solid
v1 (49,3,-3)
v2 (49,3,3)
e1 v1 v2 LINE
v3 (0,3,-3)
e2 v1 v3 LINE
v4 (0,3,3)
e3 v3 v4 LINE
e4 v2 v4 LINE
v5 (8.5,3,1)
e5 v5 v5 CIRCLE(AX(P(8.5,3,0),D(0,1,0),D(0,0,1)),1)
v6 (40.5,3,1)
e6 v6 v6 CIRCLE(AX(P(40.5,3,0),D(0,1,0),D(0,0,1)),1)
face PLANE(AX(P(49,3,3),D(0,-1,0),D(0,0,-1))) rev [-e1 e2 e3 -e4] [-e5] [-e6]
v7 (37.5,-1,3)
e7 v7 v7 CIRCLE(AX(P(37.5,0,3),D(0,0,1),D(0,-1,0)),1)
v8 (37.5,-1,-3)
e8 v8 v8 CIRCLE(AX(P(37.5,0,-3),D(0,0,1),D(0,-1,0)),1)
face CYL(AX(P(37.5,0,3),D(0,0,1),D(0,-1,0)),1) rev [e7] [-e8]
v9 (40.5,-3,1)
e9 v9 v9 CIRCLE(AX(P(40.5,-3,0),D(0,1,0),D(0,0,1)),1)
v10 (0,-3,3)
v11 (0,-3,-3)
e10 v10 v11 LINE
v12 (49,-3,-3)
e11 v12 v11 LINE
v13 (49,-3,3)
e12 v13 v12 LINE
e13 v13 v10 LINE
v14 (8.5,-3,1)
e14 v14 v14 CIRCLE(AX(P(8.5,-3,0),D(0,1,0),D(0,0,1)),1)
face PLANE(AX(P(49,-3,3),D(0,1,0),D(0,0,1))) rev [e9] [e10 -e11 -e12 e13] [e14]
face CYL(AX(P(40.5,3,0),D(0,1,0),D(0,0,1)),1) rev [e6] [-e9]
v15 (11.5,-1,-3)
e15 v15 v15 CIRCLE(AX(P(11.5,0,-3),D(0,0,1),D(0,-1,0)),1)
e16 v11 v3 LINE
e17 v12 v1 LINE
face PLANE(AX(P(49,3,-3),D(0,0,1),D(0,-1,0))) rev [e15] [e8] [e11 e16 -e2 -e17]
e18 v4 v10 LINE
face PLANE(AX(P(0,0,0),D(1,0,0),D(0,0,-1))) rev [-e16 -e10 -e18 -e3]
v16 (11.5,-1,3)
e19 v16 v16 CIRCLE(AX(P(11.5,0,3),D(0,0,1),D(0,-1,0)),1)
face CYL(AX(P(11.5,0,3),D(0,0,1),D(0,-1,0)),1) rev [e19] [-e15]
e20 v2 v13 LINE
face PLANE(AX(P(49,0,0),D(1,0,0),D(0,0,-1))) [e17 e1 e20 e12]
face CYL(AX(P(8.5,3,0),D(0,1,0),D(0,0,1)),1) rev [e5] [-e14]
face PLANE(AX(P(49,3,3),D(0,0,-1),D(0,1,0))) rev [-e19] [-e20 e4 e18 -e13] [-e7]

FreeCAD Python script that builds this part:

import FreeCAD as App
import Part
import Sketcher

V = App.Vector


def add_polygon(sketch, points):
    """Adds a closed chain of lines whose ends are joined by coincident constraints."""
    first, n = sketch.GeometryCount, len(points)
    for a, b in zip(points, points[1:] + points[:1]):
        sketch.addGeometry(Part.LineSegment(App.Vector(*a, 0), App.Vector(*b, 0)), False)
    for i in range(n):
        sketch.addConstraint(Sketcher.Constraint("Coincident", first + i, 2, first + (i + 1) % n, 1))

doc = App.newDocument("Part")
body = doc.addObject("PartDesign::Body", "Body")

# Sketch on YZ plane
sketch1 = doc.addObject("Sketcher::SketchObject", "Sketch")
body.addObject(sketch1)
sketch1.AttachmentSupport = (doc.YZ_Plane, [""])
sketch1.MapMode = "FlatFace"
add_polygon(sketch1, [(3, 3), (-3, 3), (-3, -3), (3, -3)])  # lines 0-3
sketch1.addConstraint(Sketcher.Constraint("Horizontal", 0))
sketch1.addConstraint(Sketcher.Constraint("Vertical", 1))
sketch1.addConstraint(Sketcher.Constraint("Horizontal", 2))
sketch1.addConstraint(Sketcher.Constraint("Vertical", 3))
sketch1.addConstraint(Sketcher.Constraint("Symmetric", 0, 2, 2, 2, -1, 1))
sketch1.addConstraint(Sketcher.Constraint("Equal", 2, 1))
sketch1.addConstraint(Sketcher.Constraint("DistanceX", 0, 2, 0, 1, 6.0))
pad1 = doc.addObject("PartDesign::Pad", "Pad")
body.addObject(pad1)
pad1.Profile = sketch1
pad1.Length = 49

# Sketch on XY plane
sketch2 = doc.addObject("Sketcher::SketchObject", "Sketch001")
body.addObject(sketch2)
sketch2.AttachmentSupport = (doc.XY_Plane, [""])
sketch2.MapMode = "FlatFace"
sketch2.AttachmentOffset = App.Placement(V(0, 0, 3), App.Rotation())
sketch2.addGeometry(Part.Circle(V(11.5, 0, 0), V(0, 0, 1), 1), False)
sketch2.addGeometry(Part.Circle(V(37.5, 0, 0), V(0, 0, 1), 1), False)
sketch2.addConstraint(Sketcher.Constraint("Equal", 0, 1))
sketch2.addConstraint(Sketcher.Constraint("PointOnObject", 0, 3, -1))
sketch2.addConstraint(Sketcher.Constraint("PointOnObject", 1, 3, -1))
sketch2.addConstraint(Sketcher.Constraint("Diameter", 0, 2.0))
sketch2.addConstraint(Sketcher.Constraint("DistanceX", 0, 3, 1, 3, 26.0))
sketch2.addConstraint(Sketcher.Constraint("DistanceX", -1, 1, 0, 3, 11.5))
doc.recompute()
hole = doc.addObject("PartDesign::Hole", "Hole")
body.addObject(hole)
hole.Profile = sketch2
hole.ThreadType = "None"
hole.Diameter = 2
hole.DepthType = "Dimension"
hole.Depth = 10
hole.DrillPoint = "Angled"
hole.DrillPointAngle = 118

# Sketch on XZ plane
sketch3 = doc.addObject("Sketcher::SketchObject", "Sketch002")
body.addObject(sketch3)
sketch3.AttachmentSupport = (doc.XZ_Plane, [""])
sketch3.MapMode = "FlatFace"
sketch3.AttachmentOffset = App.Placement(V(0, 0, -3), App.Rotation())
sketch3.addGeometry(Part.Circle(V(8.5, 0, 0), V(0, 0, 1), 1), False)
sketch3.addGeometry(Part.Circle(V(40.5, 0, 0), V(0, 0, 1), 1), False)
sketch3.addConstraint(Sketcher.Constraint("Equal", 0, 1))
sketch3.addConstraint(Sketcher.Constraint("PointOnObject", 0, 3, -1))
sketch3.addConstraint(Sketcher.Constraint("PointOnObject", 1, 3, -1))
sketch3.addConstraint(Sketcher.Constraint("Diameter", 0, 2.0))
sketch3.addConstraint(Sketcher.Constraint("DistanceX", 0, 3, 1, 3, 32.0))
sketch3.addConstraint(Sketcher.Constraint("DistanceX", -1, 1, 0, 3, 8.5))
doc.recompute()
hole2 = doc.addObject("PartDesign::Hole", "Hole001")
body.addObject(hole2)
hole2.Profile = sketch3
hole2.ThreadType = "None"
hole2.Diameter = 2
hole2.DepthType = "Dimension"
hole2.Depth = 10
hole2.DrillPoint = "Angled"
hole2.DrillPointAngle = 118
hole2.Reversed = True

doc.recompute()
